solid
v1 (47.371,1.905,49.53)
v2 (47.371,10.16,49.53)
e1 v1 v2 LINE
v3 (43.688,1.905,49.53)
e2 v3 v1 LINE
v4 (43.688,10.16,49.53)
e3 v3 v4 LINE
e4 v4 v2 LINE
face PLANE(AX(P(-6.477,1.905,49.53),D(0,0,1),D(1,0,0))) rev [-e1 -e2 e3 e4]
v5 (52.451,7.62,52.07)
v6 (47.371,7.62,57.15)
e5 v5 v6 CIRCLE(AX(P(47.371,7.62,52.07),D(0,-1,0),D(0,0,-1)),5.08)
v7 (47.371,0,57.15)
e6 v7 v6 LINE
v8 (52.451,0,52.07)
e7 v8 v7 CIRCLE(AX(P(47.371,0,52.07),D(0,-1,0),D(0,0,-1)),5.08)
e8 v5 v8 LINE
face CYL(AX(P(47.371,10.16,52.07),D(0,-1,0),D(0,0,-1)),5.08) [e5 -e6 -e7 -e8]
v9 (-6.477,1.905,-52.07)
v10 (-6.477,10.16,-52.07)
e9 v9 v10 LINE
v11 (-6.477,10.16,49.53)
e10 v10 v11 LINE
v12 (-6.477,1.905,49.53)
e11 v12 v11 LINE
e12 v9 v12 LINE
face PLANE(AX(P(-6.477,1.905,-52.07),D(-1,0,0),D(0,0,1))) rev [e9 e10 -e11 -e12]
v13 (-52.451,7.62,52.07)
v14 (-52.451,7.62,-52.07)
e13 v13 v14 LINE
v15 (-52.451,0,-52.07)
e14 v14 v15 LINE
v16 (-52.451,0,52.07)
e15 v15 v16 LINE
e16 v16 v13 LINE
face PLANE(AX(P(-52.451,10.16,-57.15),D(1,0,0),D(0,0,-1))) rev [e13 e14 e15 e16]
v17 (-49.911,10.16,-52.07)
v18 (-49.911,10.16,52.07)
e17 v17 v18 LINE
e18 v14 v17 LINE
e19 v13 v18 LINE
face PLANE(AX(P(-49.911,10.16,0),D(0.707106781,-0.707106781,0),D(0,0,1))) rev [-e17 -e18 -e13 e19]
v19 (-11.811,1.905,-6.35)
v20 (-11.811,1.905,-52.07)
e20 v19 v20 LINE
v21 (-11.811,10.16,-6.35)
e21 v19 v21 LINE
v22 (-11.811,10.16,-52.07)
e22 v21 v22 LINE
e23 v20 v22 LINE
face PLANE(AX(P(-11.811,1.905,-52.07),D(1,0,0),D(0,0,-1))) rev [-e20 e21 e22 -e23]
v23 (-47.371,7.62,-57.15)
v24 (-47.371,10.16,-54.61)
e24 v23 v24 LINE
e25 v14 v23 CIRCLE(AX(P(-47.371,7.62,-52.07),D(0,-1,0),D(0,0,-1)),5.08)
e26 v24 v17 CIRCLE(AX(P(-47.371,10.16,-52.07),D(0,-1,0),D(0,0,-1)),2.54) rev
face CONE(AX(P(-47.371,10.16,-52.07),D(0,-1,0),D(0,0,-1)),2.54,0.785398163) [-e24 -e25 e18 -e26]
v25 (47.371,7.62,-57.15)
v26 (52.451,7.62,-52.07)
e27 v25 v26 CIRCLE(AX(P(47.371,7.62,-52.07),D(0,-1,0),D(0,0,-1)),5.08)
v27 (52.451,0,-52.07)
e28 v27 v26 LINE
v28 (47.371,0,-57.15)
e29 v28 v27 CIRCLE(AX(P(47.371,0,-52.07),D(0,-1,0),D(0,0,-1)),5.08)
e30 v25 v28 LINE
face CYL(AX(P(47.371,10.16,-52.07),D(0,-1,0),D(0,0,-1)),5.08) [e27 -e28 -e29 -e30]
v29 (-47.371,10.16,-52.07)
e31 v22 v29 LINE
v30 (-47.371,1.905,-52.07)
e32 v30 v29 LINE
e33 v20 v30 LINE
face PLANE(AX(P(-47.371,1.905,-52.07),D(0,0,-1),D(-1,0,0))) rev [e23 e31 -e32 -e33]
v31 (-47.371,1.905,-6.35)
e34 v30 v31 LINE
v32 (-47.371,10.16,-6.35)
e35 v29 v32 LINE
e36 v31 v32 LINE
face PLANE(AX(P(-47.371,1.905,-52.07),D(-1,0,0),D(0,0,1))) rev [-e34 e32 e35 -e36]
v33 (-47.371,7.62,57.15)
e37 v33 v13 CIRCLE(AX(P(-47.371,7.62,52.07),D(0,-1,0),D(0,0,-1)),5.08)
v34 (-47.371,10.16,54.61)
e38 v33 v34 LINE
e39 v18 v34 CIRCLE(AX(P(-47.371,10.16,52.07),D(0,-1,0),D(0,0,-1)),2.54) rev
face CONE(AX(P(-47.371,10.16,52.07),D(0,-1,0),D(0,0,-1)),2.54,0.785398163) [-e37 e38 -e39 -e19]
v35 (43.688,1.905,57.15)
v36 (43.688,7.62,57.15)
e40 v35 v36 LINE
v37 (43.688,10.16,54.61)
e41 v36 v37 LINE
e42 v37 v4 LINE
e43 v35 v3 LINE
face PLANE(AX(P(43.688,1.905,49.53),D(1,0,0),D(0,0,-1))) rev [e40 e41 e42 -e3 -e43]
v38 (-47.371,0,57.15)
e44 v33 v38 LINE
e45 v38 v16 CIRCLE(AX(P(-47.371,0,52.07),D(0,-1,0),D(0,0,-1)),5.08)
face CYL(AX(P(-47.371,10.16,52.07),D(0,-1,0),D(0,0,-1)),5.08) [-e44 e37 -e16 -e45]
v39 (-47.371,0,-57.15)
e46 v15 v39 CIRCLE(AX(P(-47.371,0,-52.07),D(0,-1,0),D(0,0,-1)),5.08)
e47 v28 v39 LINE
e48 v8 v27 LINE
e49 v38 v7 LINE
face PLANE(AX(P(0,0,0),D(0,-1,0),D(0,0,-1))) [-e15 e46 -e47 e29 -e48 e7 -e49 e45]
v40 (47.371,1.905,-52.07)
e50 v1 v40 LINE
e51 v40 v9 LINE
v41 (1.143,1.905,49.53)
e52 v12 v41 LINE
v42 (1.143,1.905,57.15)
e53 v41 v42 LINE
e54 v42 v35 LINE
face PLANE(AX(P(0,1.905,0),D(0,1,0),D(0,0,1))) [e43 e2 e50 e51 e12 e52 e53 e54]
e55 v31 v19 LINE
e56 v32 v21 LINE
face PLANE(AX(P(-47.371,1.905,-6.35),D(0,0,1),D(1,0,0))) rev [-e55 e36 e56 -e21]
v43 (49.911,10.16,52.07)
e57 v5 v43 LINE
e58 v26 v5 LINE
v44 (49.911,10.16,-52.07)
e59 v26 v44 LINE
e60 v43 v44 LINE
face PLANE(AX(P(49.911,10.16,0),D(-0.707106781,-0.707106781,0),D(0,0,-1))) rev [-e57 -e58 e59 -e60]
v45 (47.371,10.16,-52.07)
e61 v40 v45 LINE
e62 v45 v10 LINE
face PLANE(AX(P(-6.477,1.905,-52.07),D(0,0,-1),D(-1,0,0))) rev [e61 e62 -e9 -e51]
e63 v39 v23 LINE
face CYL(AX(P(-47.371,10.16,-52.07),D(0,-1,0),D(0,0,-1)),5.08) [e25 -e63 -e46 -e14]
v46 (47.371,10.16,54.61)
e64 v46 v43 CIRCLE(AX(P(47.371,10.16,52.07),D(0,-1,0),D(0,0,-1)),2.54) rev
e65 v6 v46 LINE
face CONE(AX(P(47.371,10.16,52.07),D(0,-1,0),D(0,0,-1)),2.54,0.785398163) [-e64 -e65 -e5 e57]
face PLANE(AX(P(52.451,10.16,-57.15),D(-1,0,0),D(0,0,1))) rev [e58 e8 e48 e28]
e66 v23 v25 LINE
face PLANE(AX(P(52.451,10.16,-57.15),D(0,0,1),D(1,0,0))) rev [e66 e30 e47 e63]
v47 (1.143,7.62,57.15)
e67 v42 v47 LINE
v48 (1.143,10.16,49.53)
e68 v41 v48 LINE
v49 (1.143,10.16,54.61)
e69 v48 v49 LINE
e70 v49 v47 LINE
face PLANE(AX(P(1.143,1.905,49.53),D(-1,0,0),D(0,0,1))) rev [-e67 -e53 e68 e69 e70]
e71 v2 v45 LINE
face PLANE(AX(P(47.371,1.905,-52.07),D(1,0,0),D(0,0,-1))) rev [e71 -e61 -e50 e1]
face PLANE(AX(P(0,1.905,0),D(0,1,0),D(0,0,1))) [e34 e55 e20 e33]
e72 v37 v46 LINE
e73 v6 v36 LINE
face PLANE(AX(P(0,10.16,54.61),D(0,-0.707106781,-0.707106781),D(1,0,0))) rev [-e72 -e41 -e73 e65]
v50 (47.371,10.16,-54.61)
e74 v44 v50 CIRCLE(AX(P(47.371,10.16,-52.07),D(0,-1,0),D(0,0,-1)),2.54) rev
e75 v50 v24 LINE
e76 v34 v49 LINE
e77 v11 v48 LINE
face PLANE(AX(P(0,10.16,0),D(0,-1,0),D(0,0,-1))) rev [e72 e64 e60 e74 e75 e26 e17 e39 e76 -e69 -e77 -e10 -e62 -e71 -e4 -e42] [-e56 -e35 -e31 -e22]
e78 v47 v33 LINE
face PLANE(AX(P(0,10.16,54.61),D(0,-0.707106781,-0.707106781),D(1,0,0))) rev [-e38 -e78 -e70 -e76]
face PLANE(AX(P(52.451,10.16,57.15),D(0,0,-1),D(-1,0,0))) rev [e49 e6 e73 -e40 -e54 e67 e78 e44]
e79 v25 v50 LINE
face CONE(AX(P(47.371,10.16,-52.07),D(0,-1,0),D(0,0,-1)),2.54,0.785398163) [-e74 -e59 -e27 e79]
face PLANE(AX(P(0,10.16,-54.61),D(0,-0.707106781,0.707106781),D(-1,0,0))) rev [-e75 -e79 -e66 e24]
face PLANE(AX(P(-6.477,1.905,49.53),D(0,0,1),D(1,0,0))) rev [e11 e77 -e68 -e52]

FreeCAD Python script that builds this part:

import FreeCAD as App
import Part
import Sketcher

V = App.Vector
Q = App.Units.Quantity


def edges_at(feature, points):
    """Names of the edges that pass closest to the given points."""
    edges = feature.Shape.Edges
    near = lambda p: min(range(len(edges)), key=lambda i: edges[i].distToShape(Part.Vertex(*p))[0])
    return sorted({f"Edge{near(p) + 1}" for p in points})

doc = App.newDocument("Part")
body = doc.addObject("PartDesign::Body", "Body")

# Sketch on XZ plane
sketch1 = body.newObject("Sketcher::SketchObject", "Sketch")
sketch1.AttachmentSupport = (doc.getObject("XZ_Plane"), [""])
sketch1.MapMode = "FlatFace"
sketch1.addGeometry([
    Part.LineSegment(V(-52, -57, 0), V(-52, 57, 0)),
    Part.LineSegment(V(-52, 57, 0), V(52, 57, 0)),
    Part.LineSegment(V(52, 57, 0), V(52, -57, 0)),
    Part.LineSegment(V(52, -57, 0), V(-52, -57, 0)),
], False)
sketch1.addConstraint([
    Sketcher.Constraint("Coincident", 0, 2, 1, 1),
    Sketcher.Constraint("Coincident", 1, 2, 2, 1),
    Sketcher.Constraint("Coincident", 2, 2, 3, 1),
    Sketcher.Constraint("Coincident", 3, 2, 0, 1),
    Sketcher.Constraint("Vertical", 0),
    Sketcher.Constraint("Horizontal", 1),
    Sketcher.Constraint("Vertical", 2),
    Sketcher.Constraint("Horizontal", 3),
    Sketcher.Constraint("Symmetric", 0, 2, 2, 2, -1, 1),
    Sketcher.Constraint("DistanceY", 0, 1, 0, 2, Q("4.5 in")),
    Sketcher.Constraint("DistanceX", 1, 1, 1, 2, Q("4.13 in")),
])
pad1 = body.newObject("PartDesign::Pad", "Pad")
pad1.Profile = sketch1
pad1.Length = Q("0.4 in")
pad1.Reversed = True

# Sketch on XZ plane
sketch2 = body.newObject("Sketcher::SketchObject", "Sketch001")
sketch2.AttachmentSupport = (doc.getObject("XZ_Plane"), [""])
sketch2.MapMode = "FlatFace"
sketch2.AttachmentOffset = App.Placement(V(0, 0, -0.4 * 25.4), App.Rotation())
sketch2.addGeometry([
    Part.LineSegment(V(-47, -52, 0), V(-47, -6, 0)),
    Part.LineSegment(V(-47, -6, 0), V(-12, -6, 0)),
    Part.LineSegment(V(-12, -6, 0), V(-12, -52, 0)),
    Part.LineSegment(V(-12, -52, 0), V(-47, -52, 0)),
], False)
sketch2.addConstraint([
    Sketcher.Constraint("Coincident", 0, 2, 1, 1),
    Sketcher.Constraint("Coincident", 1, 2, 2, 1),
    Sketcher.Constraint("Coincident", 2, 2, 3, 1),
    Sketcher.Constraint("Coincident", 3, 2, 0, 1),
    Sketcher.Constraint("Vertical", 0),
    Sketcher.Constraint("Horizontal", 1),
    Sketcher.Constraint("Vertical", 2),
    Sketcher.Constraint("Horizontal", 3),
    Sketcher.Constraint("DistanceX", 1, 1, 1, 2, Q("1.4 in")),
    Sketcher.Constraint("DistanceY", 0, 1, 0, 2, Q("1.8 in")),
    Sketcher.Constraint("DistanceY", 0, 2, -1, 1, Q("0.25 in")),
    Sketcher.Constraint("DistanceX", 0, 2, -1, 1, Q("1.865 in")),
])
pocket1 = body.newObject("PartDesign::Pocket", "Pocket")
pocket1.Profile = sketch2
pocket1.Length = Q("0.325 in")
pocket1.Reversed = True

# Sketch on XZ plane
sketch3 = body.newObject("Sketcher::SketchObject", "Sketch002")
sketch3.AttachmentSupport = (doc.getObject("XZ_Plane"), [""])
sketch3.MapMode = "FlatFace"
sketch3.AttachmentOffset = App.Placement(V(0, 0, -0.4 * 25.4), App.Rotation())
sketch3.addGeometry([
    Part.LineSegment(V(-6, -52, 0), V(-6, 50, 0)),
    Part.LineSegment(V(-6, 50, 0), V(47, 50, 0)),
    Part.LineSegment(V(47, 50, 0), V(47, -52, 0)),
    Part.LineSegment(V(47, -52, 0), V(-6, -52, 0)),
], False)
sketch3.addConstraint([
    Sketcher.Constraint("Coincident", 0, 2, 1, 1),
    Sketcher.Constraint("Coincident", 1, 2, 2, 1),
    Sketcher.Constraint("Coincident", 2, 2, 3, 1),
    Sketcher.Constraint("Coincident", 3, 2, 0, 1),
    Sketcher.Constraint("Vertical", 0),
    Sketcher.Constraint("Horizontal", 1),
    Sketcher.Constraint("Vertical", 2),
    Sketcher.Constraint("Horizontal", 3),
    Sketcher.Constraint("DistanceY", 0, 1, 0, 2, Q("4 in")),
    Sketcher.Constraint("DistanceX", 1, 1, 1, 2, Q("2.12 in")),
    Sketcher.Constraint("DistanceY", -1, 1, 0, 2, Q("1.95 in")),
    Sketcher.Constraint("DistanceX", 0, 2, -1, 1, Q("0.255 in")),
])
pocket2 = body.newObject("PartDesign::Pocket", "Pocket001")
pocket2.Profile = sketch3
pocket2.Length = Q("0.325 in")
pocket2.Reversed = True

# Sketch on XZ plane
sketch4 = body.newObject("Sketcher::SketchObject", "Sketch003")
sketch4.AttachmentSupport = (doc.getObject("XZ_Plane"), [""])
sketch4.MapMode = "FlatFace"
sketch4.AttachmentOffset = App.Placement(V(0, 0, -0.4 * 25.4), App.Rotation())
sketch4.addGeometry([
    Part.LineSegment(V(44, 50, 0), V(1, 50, 0)),
    Part.LineSegment(V(1, 50, 0), V(1, 57, 0)),
    Part.LineSegment(V(1, 57, 0), V(44, 57, 0)),
    Part.LineSegment(V(44, 57, 0), V(44, 50, 0)),
], False)
sketch4.addConstraint([
    Sketcher.Constraint("Coincident", 0, 2, 1, 1),
    Sketcher.Constraint("Coincident", 1, 2, 2, 1),
    Sketcher.Constraint("Coincident", 2, 2, 3, 1),
    Sketcher.Constraint("Coincident", 3, 2, 0, 1),
    Sketcher.Constraint("Horizontal", 0),
    Sketcher.Constraint("Vertical", 1),
    Sketcher.Constraint("Horizontal", 2),
    Sketcher.Constraint("Vertical", 3),
    Sketcher.Constraint("DistanceY", 1, 1, 1, 2, Q("0.3 in")),
    Sketcher.Constraint("DistanceX", 0, 2, 0, 1, Q("1.675 in")),
    Sketcher.Constraint("DistanceY", -1, 1, 0, 2, Q("1.95 in")),
    Sketcher.Constraint("DistanceX", -1, 1, 2, 2, Q("1.72 in")),
])
pocket3 = body.newObject("PartDesign::Pocket", "Pocket002")
pocket3.Profile = sketch4
pocket3.Length = Q("0.325 in")
pocket3.Reversed = True
doc.recompute()

fillet = body.newObject("PartDesign::Fillet", "Fillet")
fillet.Base = (pocket3, edges_at(pocket3, [
    (-52.451, 5.08, -57.15),
    (52.451, 5.08, -57.15),
    (52.451, 5.08, 57.15),
    (-52.451, 5.08, 57.15),
]))
fillet.Radius = Q("0.2 in")
doc.recompute()

chamfer = body.newObject("PartDesign::Chamfer", "Chamfer")
chamfer.Base = (fillet, edges_at(fillet, [
    (45.529, 10.16, 57.15),
    (52.451, 10.16, 0),
    (-23.114, 10.16, 57.15),
    (0, 10.16, -57.15),
    (-52.451, 10.16, 0),
    (50.963, 10.16, -55.662),
    (-50.963, 10.16, -55.662),
    (-50.963, 10.16, 55.662),
    (50.963, 10.16, 55.662),
]))
chamfer.Size = Q("0.1 in")

doc.recompute()
